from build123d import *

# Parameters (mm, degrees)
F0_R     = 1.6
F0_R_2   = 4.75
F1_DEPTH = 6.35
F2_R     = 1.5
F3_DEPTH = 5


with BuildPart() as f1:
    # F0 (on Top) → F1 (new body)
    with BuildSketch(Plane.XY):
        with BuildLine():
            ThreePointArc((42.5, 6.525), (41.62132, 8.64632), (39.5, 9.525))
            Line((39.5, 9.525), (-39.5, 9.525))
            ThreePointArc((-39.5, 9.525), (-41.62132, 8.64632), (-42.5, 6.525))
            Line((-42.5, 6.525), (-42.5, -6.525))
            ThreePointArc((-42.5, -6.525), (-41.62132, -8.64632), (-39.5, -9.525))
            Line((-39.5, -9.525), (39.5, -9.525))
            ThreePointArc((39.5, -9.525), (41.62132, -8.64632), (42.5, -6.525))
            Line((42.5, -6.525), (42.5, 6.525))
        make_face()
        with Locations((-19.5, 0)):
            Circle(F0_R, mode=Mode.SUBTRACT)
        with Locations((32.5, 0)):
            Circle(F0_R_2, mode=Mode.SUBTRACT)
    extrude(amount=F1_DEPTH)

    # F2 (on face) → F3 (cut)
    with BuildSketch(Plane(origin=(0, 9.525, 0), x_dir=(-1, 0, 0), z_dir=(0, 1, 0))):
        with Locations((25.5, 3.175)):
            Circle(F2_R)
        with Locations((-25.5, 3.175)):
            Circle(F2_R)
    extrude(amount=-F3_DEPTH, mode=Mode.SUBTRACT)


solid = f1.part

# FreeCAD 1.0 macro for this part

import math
import FreeCAD as App
import Part
import Sketcher
from FreeCAD import Vector

doc = App.newDocument("Part")
body = doc.addObject("PartDesign::Body", "Body")

sketch1 = body.newObject("Sketcher::SketchObject", "Sketch")
sketch1.AttachmentSupport = (doc.getObject("XY_Plane"), [""])
sketch1.MapMode = "FlatFace"
sketch1.addGeometry([
    Part.ArcOfCircle(Part.Circle(Vector(39.5, 6.5, 0), Vector(0, 0, 1), 3), math.radians(0), math.radians(90)),
    Part.LineSegment(Vector(39.5, 9.5, 0), Vector(-39.5, 9.5, 0)),
    Part.ArcOfCircle(Part.Circle(Vector(-39.5, 6.5, 0), Vector(0, 0, 1), 3), math.radians(90), math.radians(180)),
    Part.LineSegment(Vector(-42.5, 6.5, 0), Vector(-42.5, -6.5, 0)),
    Part.ArcOfCircle(Part.Circle(Vector(-39.5, -6.5, 0), Vector(0, 0, 1), 3), math.radians(-180), math.radians(-90)),
    Part.LineSegment(Vector(-39.5, -9.5, 0), Vector(39.5, -9.5, 0)),
    Part.ArcOfCircle(Part.Circle(Vector(39.5, -6.5, 0), Vector(0, 0, 1), 3), math.radians(-90), math.radians(0)),
    Part.LineSegment(Vector(42.5, -6.5, 0), Vector(42.5, 6.5, 0)),
    Part.Circle(Vector(-19.5, 0, 0), Vector(0, 0, 1), 1.6),
    Part.Circle(Vector(32.5, 0, 0), Vector(0, 0, 1), 4.8),
], False)
sketch1.addConstraint([
    Sketcher.Constraint("Tangent", 0, 2, 1, 1),
    Sketcher.Constraint("Tangent", 1, 2, 2, 1),
    Sketcher.Constraint("Tangent", 2, 2, 3, 1),
    Sketcher.Constraint("Tangent", 3, 2, 4, 1),
    Sketcher.Constraint("Tangent", 4, 2, 5, 1),
    Sketcher.Constraint("Tangent", 5, 2, 6, 1),
    Sketcher.Constraint("Tangent", 6, 2, 7, 1),
    Sketcher.Constraint("Tangent", 7, 2, 0, 1),
    Sketcher.Constraint("Horizontal", 1),
    Sketcher.Constraint("Vertical", 3),
    Sketcher.Constraint("Horizontal", 5),
    Sketcher.Constraint("Vertical", 7),
    Sketcher.Constraint("Equal", 0, 2),
    Sketcher.Constraint("Equal", 2, 4),
    Sketcher.Constraint("Equal", 4, 6),
    Sketcher.Constraint("Symmetric", 0, 3, 4, 3, -1, 1),
    Sketcher.Constraint("PointOnObject", 8, 3, -1),
    Sketcher.Constraint("PointOnObject", 9, 3, -1),
    Sketcher.Constraint("Radius", 0, 3.000001),
    Sketcher.Constraint("Diameter", 8, 3.2),
    Sketcher.Constraint("Diameter", 9, 9.5),
    Sketcher.Constraint("DistanceX", 1, 2, 1, 1, 79.0),
    Sketcher.Constraint("DistanceX", 2, 3, 8, 3, 19.999999),
    Sketcher.Constraint("DistanceX", 9, 3, 0, 3, 6.999999),
    Sketcher.Constraint("DistanceY", 3, 2, 3, 1, 13.05),
])
pad1 = body.newObject("PartDesign::Pad", "Pad")
pad1.Profile = sketch1
pad1.Length = 6.35

sketch2 = body.newObject("Sketcher::SketchObject", "Sketch001")
sketch2.AttachmentSupport = (doc.getObject("XZ_Plane"), [""])
sketch2.MapMode = "FlatFace"
sketch2.AttachmentOffset = App.Placement(Vector(0, 0, -9.525), App.Rotation())
sketch2.addGeometry([
    Part.Circle(Vector(-25.5, 3.2, 0), Vector(0, 0, 1), 1.5),
    Part.Circle(Vector(25.5, 3.2, 0), Vector(0, 0, 1), 1.5),
], False)
sketch2.addConstraint([
    Sketcher.Constraint("Equal", 0, 1),
    Sketcher.Constraint("Symmetric", 0, 3, 1, 3, -2),
    Sketcher.Constraint("Diameter", 0, 3.0),
    Sketcher.Constraint("DistanceX", 0, 3, 1, 3, 51.0),
    Sketcher.Constraint("DistanceY", -1, 1, 0, 3, 3.175),
])
pocket1 = body.newObject("PartDesign::Pocket", "Pocket")
pocket1.Profile = sketch2
pocket1.Length = 5
pocket1.Reversed = True

doc.recompute()
